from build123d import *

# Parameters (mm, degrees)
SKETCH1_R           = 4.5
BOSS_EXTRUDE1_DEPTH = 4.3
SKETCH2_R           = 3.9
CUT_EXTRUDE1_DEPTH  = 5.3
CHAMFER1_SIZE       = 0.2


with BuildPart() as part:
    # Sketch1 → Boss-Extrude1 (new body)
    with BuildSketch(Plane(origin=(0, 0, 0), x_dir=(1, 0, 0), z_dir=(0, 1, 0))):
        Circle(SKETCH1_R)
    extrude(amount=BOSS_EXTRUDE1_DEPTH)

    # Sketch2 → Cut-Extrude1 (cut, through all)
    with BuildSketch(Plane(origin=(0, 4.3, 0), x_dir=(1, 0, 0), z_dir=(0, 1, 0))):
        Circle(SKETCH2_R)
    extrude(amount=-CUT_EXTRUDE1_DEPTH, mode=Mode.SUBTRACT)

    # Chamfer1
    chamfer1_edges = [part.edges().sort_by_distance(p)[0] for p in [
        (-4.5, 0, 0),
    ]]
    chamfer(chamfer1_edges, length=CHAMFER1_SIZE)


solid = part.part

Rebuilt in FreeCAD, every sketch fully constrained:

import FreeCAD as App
import Part
import Sketcher

V = App.Vector
Q = App.Units.Quantity


def edges_at(feature, points):
    """Names of the edges that pass closest to the given points."""
    edges = feature.Shape.Edges
    near = lambda p: min(range(len(edges)), key=lambda i: edges[i].distToShape(Part.Vertex(*p))[0])
    return sorted({f"Edge{near(p) + 1}" for p in points})

doc = App.newDocument("Part")
params = doc.addObject("Spreadsheet::Sheet", "Params")
for row, (alias, value) in enumerate([
    ("sketch1_diameter", "9 mm"),
    ("pad1_length", "4.3 mm"),
    ("sketch2_diameter", "7.8 mm"),
    ("chamfer_size", "0.2 mm"),
], start=1):
    params.set(f"A{row}", alias)
    params.set(f"B{row}", "=" + value)
    params.setAlias(f"B{row}", alias)

body = doc.addObject("PartDesign::Body", "Body")

sketch1 = doc.addObject("Sketcher::SketchObject", "Sketch")
body.addObject(sketch1)
sketch1.AttachmentSupport = (doc.XZ_Plane, [""])
sketch1.MapMode = "FlatFace"
sketch1.addGeometry(Part.Circle(V(0, 0, 0), V(0, 0, 1), 4.5), False)
sketch1.addConstraint(Sketcher.Constraint("Coincident", 0, 3, -1, 1))
sketch1.addConstraint(Sketcher.Constraint("Diameter", 0, Q("9 mm")))
sketch1.setExpression("Constraints[1]", "Params.sketch1_diameter")
pad1 = doc.addObject("PartDesign::Pad", "Pad")
body.addObject(pad1)
pad1.Profile = sketch1
pad1.setExpression("Length", "Params.pad1_length")
pad1.Reversed = True

sketch2 = doc.addObject("Sketcher::SketchObject", "Sketch001")
body.addObject(sketch2)
sketch2.AttachmentSupport = (doc.XZ_Plane, [""])
sketch2.MapMode = "FlatFace"
sketch2.AttachmentOffset = App.Placement(V(0, 0, -4.3), App.Rotation())
sketch2.addGeometry(Part.Circle(V(0, 0, 0), V(0, 0, 1), 3.9), False)
sketch2.addConstraint(Sketcher.Constraint("Coincident", 0, 3, -1, 1))
sketch2.addConstraint(Sketcher.Constraint("Diameter", 0, Q("7.8 mm")))
sketch2.setExpression("Constraints[1]", "Params.sketch2_diameter")
pocket1 = doc.addObject("PartDesign::Pocket", "Pocket")
body.addObject(pocket1)
pocket1.Profile = sketch2
pocket1.Type = "ThroughAll"
pocket1.Reversed = True
doc.recompute()

chamfer = doc.addObject("PartDesign::Chamfer", "Chamfer")
body.addObject(chamfer)
chamfer.Base = (pocket1, edges_at(pocket1, [(-4.5, 0, 0)]))
chamfer.setExpression("Size", "Params.chamfer_size")

doc.recompute()
